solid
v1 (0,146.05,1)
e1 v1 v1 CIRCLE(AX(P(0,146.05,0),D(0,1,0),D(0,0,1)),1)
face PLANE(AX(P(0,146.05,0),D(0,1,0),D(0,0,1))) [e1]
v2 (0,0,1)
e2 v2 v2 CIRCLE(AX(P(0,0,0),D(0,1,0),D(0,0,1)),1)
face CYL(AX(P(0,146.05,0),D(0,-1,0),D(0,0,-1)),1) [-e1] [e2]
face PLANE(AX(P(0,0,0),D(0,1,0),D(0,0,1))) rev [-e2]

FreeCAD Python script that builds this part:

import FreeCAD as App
import Part
import Sketcher
Q = App.Units.Quantity

doc = App.newDocument("Part")
params = doc.addObject("Spreadsheet::Sheet", "Params")
for row, (alias, value) in enumerate([
    ("sketch1_diameter", "2 mm"),
    ("pad1_length", "146.05 mm"),
], start=1):
    params.set(f"A{row}", alias)
    params.set(f"B{row}", "=" + value)
    params.setAlias(f"B{row}", alias)

body = doc.addObject("PartDesign::Body", "Body")

sketch1 = body.newObject("Sketcher::SketchObject", "Sketch")
sketch1.AttachmentSupport = (doc.getObject("XZ_Plane"), [""])
sketch1.MapMode = "FlatFace"
sketch1.addGeometry(Part.Circle(App.Vector(0, 0, 0), App.Vector(0, 0, 1), 1), False)
sketch1.addConstraint([
    Sketcher.Constraint("Coincident", 0, 3, -1, 1),
    Sketcher.Constraint("Diameter", 0, Q("2 mm")),
])
sketch1.setExpression("Constraints[1]", "Params.sketch1_diameter")
pad1 = body.newObject("PartDesign::Pad", "Pad")
pad1.Profile = sketch1
pad1.setExpression("Length", "Params.pad1_length")
pad1.Reversed = True

doc.recompute()
